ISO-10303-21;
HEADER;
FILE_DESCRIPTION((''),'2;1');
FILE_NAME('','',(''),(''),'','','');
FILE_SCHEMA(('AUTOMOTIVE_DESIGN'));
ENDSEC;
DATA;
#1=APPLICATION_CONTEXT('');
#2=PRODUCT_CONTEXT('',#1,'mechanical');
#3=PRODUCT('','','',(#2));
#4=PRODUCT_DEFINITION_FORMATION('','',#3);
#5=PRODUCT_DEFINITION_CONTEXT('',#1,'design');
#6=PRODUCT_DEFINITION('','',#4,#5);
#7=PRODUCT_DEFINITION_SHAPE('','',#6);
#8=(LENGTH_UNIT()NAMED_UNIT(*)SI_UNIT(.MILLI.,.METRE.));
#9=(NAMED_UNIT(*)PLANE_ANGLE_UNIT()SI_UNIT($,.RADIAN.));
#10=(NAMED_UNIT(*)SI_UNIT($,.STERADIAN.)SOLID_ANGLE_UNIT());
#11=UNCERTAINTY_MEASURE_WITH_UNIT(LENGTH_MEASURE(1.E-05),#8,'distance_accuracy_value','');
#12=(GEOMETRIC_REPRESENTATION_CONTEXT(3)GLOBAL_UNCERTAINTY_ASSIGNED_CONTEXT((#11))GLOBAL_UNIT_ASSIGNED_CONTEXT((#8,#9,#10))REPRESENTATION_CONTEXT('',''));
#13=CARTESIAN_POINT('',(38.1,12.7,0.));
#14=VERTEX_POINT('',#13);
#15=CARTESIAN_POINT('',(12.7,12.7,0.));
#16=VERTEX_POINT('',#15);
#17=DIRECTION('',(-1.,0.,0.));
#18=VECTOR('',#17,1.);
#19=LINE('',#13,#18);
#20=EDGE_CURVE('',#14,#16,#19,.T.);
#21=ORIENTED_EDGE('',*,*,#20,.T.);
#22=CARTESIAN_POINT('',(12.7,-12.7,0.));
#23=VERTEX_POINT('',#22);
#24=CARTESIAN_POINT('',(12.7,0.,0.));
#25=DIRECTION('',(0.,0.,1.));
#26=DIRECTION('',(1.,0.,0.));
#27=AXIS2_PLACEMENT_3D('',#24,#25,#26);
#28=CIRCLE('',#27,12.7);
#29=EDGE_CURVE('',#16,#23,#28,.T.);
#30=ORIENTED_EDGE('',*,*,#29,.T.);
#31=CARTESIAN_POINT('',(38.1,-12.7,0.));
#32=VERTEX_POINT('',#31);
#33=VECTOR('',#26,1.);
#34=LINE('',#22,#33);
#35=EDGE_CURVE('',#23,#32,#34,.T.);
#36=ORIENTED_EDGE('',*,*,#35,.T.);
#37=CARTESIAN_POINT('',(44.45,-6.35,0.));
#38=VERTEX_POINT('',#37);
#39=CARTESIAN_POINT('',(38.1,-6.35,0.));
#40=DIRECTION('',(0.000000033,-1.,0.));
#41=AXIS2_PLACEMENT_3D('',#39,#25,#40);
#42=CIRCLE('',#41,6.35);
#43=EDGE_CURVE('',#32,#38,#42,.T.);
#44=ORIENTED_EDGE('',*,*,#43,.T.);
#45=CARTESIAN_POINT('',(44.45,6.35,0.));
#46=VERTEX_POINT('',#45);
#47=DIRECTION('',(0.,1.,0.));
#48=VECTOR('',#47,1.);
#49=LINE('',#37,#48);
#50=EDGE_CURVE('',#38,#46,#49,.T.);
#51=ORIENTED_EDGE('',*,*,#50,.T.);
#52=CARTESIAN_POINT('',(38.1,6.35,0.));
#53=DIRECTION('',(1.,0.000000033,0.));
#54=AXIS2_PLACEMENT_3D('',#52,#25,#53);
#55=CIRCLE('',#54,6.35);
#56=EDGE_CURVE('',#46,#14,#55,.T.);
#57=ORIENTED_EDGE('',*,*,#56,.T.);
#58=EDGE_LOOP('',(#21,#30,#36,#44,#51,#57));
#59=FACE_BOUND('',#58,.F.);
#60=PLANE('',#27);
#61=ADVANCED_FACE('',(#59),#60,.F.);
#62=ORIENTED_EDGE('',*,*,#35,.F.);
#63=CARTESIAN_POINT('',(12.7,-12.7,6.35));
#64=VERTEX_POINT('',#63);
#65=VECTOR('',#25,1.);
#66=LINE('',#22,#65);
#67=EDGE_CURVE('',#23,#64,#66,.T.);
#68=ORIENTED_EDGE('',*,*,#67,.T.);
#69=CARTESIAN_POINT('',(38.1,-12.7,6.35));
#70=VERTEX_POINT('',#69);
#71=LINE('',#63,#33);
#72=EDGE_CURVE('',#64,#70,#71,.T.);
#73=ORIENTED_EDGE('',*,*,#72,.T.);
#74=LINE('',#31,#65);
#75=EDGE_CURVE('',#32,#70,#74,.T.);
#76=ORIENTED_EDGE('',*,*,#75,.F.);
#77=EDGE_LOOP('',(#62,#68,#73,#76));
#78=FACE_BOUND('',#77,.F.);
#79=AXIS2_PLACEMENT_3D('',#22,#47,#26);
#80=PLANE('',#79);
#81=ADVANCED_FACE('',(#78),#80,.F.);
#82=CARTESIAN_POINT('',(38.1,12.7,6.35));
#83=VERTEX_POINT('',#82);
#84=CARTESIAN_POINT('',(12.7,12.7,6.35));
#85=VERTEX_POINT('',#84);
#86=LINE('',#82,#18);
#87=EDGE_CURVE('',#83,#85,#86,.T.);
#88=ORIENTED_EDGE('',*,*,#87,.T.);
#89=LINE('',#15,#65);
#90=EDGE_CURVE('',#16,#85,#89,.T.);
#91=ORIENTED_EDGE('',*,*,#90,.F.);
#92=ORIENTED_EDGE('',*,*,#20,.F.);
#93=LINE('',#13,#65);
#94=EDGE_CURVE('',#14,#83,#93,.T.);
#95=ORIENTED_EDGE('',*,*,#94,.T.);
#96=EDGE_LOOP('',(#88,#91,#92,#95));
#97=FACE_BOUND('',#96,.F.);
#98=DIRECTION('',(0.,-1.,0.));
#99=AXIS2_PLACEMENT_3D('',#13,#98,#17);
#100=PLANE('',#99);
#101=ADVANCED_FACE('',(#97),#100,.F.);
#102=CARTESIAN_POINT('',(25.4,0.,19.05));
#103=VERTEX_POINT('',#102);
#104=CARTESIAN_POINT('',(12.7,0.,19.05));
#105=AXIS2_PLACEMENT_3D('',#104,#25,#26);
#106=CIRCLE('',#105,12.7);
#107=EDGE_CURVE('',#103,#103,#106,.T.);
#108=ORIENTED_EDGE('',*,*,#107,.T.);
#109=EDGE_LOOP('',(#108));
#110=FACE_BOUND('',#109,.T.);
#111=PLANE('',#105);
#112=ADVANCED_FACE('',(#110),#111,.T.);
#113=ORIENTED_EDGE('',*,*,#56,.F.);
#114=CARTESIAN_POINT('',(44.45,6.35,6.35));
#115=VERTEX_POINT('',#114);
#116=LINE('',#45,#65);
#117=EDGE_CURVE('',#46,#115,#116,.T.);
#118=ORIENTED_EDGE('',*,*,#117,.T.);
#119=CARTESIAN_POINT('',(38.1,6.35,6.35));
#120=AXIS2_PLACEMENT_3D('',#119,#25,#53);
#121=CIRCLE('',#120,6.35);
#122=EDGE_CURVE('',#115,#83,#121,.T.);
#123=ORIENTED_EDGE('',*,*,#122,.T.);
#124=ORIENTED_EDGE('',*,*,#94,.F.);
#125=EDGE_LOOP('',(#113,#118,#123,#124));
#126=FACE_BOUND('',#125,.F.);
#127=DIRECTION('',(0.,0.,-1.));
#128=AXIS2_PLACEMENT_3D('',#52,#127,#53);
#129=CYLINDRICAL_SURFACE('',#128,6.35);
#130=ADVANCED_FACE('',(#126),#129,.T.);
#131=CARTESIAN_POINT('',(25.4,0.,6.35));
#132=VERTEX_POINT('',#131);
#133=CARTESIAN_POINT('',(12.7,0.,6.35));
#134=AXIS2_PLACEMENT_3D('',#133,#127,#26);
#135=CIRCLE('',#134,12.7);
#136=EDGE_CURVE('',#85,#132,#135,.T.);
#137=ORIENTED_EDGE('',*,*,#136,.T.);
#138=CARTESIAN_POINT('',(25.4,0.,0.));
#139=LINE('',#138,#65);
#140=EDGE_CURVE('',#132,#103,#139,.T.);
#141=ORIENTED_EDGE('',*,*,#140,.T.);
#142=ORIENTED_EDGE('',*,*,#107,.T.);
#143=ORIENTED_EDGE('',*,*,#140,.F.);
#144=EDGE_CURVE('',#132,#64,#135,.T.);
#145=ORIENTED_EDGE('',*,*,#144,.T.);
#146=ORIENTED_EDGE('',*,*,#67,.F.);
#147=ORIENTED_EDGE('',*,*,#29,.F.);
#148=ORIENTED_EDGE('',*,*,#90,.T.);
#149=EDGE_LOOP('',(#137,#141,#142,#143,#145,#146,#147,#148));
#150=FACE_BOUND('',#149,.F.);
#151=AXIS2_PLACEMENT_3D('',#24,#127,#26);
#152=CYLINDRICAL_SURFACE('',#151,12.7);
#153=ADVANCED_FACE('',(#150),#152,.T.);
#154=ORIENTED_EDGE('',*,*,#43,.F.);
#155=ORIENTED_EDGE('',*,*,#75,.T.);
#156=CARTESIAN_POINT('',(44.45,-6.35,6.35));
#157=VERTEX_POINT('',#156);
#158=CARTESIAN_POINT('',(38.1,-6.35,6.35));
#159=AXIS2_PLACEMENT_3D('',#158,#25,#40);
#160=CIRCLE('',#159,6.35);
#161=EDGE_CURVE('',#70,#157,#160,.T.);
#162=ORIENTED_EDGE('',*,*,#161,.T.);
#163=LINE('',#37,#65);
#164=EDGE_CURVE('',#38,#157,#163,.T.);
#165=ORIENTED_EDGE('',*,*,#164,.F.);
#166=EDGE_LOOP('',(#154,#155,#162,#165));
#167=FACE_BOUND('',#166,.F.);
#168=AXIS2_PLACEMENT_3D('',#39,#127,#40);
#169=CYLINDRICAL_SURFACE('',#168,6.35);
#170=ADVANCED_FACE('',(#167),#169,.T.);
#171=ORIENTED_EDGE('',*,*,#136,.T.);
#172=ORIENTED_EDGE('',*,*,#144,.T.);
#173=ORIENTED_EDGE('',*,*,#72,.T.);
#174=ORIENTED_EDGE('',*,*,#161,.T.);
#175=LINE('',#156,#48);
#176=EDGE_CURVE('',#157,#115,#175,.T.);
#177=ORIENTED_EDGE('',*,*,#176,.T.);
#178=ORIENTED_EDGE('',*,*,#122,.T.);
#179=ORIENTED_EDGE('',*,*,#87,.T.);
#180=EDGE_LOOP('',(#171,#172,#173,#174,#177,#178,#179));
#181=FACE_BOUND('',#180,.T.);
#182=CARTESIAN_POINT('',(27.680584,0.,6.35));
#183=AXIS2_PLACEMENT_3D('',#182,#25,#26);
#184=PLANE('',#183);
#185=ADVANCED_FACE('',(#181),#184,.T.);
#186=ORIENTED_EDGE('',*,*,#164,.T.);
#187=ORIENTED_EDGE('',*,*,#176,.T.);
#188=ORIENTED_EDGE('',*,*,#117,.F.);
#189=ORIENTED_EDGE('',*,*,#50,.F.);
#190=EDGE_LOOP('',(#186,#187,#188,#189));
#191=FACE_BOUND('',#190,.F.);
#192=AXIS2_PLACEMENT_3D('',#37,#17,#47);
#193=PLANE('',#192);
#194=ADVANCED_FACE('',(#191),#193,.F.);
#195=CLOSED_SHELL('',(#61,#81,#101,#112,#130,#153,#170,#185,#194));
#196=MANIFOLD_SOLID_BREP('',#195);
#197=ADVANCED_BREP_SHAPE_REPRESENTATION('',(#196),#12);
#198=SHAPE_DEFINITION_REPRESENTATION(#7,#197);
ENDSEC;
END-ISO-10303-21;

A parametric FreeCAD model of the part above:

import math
import FreeCAD as App
import Part
import Sketcher
Q = App.Units.Quantity

doc = App.newDocument("Part")
body = doc.addObject("PartDesign::Body", "Body")

# Sketch on XY plane
sketch1 = body.newObject("Sketcher::SketchObject", "Sketch")
sketch1.AttachmentSupport = (doc.getObject("XY_Plane"), [""])
sketch1.MapMode = "FlatFace"
sketch1.addGeometry(Part.Circle(App.Vector(12.7, 0, 0), App.Vector(0, 0, 1), 12.7), False)
sketch1.addConstraint(Sketcher.Constraint("PointOnObject", 0, 3, -1))
sketch1.addConstraint(Sketcher.Constraint("Diameter", 0, Q("1 in")))
sketch1.addConstraint(Sketcher.Constraint("DistanceX", -1, 1, 0, 3, Q("0.5 in")))
pad1 = body.newObject("PartDesign::Pad", "Pad")
pad1.Profile = sketch1
pad1.Length = Q("0.75 in")

# Sketch on XY plane
sketch2 = body.newObject("Sketcher::SketchObject", "Sketch001")
sketch2.AttachmentSupport = (doc.getObject("XY_Plane"), [""])
sketch2.MapMode = "FlatFace"
sketch2.addGeometry(Part.LineSegment(App.Vector(12.7, 12.7, 0), App.Vector(12.7, -12.7, 0)), False)
sketch2.addGeometry(Part.LineSegment(App.Vector(12.7, -12.7, 0), App.Vector(38.1, -12.7, 0)), False)
sketch2.addGeometry(Part.ArcOfCircle(Part.Circle(App.Vector(38.1, -6.35, 0), App.Vector(0, 0, 1), 6.35), math.radians(-89.999998), math.radians(-0.000002)), False)
sketch2.addGeometry(Part.LineSegment(App.Vector(44.45, -6.35, 0), App.Vector(44.45, 6.35, 0)), False)
sketch2.addGeometry(Part.ArcOfCircle(Part.Circle(App.Vector(38.1, 6.35, 0), App.Vector(0, 0, 1), 6.35), math.radians(0.000002), math.radians(89.999998)), False)
sketch2.addGeometry(Part.LineSegment(App.Vector(38.1, 12.7, 0), App.Vector(12.7, 12.7, 0)), False)
sketch2.addConstraint(Sketcher.Constraint("Coincident", 0, 2, 1, 1))
sketch2.addConstraint(Sketcher.Constraint("Tangent", 1, 2, 2, 1))
sketch2.addConstraint(Sketcher.Constraint("Tangent", 2, 2, 3, 1))
sketch2.addConstraint(Sketcher.Constraint("Tangent", 3, 2, 4, 1))
sketch2.addConstraint(Sketcher.Constraint("Tangent", 4, 2, 5, 1))
sketch2.addConstraint(Sketcher.Constraint("Coincident", 5, 2, 0, 1))
sketch2.addConstraint(Sketcher.Constraint("Vertical", 0))
sketch2.addConstraint(Sketcher.Constraint("Horizontal", 1))
sketch2.addConstraint(Sketcher.Constraint("Vertical", 3))
sketch2.addConstraint(Sketcher.Constraint("Horizontal", 5))
sketch2.addConstraint(Sketcher.Constraint("Equal", 2, 4))
sketch2.addConstraint(Sketcher.Constraint("Equal", 5, 0))
sketch2.addConstraint(Sketcher.Constraint("DistanceX", 1, 1, 1, 2, Q("1 in")))
sketch2.addConstraint(Sketcher.Constraint("Radius", 2, Q("0.25 in")))
sketch2.addConstraint(Sketcher.Constraint("DistanceX", -1, 1, 2, 3, Q("1.5 in")))
sketch2.addConstraint(Sketcher.Constraint("DistanceY", 0, 2, -1, 1, Q("0.5 in")))
pad2 = body.newObject("PartDesign::Pad", "Pad001")
pad2.Profile = sketch2
pad2.Length = Q("0.25 in")

doc.recompute()
